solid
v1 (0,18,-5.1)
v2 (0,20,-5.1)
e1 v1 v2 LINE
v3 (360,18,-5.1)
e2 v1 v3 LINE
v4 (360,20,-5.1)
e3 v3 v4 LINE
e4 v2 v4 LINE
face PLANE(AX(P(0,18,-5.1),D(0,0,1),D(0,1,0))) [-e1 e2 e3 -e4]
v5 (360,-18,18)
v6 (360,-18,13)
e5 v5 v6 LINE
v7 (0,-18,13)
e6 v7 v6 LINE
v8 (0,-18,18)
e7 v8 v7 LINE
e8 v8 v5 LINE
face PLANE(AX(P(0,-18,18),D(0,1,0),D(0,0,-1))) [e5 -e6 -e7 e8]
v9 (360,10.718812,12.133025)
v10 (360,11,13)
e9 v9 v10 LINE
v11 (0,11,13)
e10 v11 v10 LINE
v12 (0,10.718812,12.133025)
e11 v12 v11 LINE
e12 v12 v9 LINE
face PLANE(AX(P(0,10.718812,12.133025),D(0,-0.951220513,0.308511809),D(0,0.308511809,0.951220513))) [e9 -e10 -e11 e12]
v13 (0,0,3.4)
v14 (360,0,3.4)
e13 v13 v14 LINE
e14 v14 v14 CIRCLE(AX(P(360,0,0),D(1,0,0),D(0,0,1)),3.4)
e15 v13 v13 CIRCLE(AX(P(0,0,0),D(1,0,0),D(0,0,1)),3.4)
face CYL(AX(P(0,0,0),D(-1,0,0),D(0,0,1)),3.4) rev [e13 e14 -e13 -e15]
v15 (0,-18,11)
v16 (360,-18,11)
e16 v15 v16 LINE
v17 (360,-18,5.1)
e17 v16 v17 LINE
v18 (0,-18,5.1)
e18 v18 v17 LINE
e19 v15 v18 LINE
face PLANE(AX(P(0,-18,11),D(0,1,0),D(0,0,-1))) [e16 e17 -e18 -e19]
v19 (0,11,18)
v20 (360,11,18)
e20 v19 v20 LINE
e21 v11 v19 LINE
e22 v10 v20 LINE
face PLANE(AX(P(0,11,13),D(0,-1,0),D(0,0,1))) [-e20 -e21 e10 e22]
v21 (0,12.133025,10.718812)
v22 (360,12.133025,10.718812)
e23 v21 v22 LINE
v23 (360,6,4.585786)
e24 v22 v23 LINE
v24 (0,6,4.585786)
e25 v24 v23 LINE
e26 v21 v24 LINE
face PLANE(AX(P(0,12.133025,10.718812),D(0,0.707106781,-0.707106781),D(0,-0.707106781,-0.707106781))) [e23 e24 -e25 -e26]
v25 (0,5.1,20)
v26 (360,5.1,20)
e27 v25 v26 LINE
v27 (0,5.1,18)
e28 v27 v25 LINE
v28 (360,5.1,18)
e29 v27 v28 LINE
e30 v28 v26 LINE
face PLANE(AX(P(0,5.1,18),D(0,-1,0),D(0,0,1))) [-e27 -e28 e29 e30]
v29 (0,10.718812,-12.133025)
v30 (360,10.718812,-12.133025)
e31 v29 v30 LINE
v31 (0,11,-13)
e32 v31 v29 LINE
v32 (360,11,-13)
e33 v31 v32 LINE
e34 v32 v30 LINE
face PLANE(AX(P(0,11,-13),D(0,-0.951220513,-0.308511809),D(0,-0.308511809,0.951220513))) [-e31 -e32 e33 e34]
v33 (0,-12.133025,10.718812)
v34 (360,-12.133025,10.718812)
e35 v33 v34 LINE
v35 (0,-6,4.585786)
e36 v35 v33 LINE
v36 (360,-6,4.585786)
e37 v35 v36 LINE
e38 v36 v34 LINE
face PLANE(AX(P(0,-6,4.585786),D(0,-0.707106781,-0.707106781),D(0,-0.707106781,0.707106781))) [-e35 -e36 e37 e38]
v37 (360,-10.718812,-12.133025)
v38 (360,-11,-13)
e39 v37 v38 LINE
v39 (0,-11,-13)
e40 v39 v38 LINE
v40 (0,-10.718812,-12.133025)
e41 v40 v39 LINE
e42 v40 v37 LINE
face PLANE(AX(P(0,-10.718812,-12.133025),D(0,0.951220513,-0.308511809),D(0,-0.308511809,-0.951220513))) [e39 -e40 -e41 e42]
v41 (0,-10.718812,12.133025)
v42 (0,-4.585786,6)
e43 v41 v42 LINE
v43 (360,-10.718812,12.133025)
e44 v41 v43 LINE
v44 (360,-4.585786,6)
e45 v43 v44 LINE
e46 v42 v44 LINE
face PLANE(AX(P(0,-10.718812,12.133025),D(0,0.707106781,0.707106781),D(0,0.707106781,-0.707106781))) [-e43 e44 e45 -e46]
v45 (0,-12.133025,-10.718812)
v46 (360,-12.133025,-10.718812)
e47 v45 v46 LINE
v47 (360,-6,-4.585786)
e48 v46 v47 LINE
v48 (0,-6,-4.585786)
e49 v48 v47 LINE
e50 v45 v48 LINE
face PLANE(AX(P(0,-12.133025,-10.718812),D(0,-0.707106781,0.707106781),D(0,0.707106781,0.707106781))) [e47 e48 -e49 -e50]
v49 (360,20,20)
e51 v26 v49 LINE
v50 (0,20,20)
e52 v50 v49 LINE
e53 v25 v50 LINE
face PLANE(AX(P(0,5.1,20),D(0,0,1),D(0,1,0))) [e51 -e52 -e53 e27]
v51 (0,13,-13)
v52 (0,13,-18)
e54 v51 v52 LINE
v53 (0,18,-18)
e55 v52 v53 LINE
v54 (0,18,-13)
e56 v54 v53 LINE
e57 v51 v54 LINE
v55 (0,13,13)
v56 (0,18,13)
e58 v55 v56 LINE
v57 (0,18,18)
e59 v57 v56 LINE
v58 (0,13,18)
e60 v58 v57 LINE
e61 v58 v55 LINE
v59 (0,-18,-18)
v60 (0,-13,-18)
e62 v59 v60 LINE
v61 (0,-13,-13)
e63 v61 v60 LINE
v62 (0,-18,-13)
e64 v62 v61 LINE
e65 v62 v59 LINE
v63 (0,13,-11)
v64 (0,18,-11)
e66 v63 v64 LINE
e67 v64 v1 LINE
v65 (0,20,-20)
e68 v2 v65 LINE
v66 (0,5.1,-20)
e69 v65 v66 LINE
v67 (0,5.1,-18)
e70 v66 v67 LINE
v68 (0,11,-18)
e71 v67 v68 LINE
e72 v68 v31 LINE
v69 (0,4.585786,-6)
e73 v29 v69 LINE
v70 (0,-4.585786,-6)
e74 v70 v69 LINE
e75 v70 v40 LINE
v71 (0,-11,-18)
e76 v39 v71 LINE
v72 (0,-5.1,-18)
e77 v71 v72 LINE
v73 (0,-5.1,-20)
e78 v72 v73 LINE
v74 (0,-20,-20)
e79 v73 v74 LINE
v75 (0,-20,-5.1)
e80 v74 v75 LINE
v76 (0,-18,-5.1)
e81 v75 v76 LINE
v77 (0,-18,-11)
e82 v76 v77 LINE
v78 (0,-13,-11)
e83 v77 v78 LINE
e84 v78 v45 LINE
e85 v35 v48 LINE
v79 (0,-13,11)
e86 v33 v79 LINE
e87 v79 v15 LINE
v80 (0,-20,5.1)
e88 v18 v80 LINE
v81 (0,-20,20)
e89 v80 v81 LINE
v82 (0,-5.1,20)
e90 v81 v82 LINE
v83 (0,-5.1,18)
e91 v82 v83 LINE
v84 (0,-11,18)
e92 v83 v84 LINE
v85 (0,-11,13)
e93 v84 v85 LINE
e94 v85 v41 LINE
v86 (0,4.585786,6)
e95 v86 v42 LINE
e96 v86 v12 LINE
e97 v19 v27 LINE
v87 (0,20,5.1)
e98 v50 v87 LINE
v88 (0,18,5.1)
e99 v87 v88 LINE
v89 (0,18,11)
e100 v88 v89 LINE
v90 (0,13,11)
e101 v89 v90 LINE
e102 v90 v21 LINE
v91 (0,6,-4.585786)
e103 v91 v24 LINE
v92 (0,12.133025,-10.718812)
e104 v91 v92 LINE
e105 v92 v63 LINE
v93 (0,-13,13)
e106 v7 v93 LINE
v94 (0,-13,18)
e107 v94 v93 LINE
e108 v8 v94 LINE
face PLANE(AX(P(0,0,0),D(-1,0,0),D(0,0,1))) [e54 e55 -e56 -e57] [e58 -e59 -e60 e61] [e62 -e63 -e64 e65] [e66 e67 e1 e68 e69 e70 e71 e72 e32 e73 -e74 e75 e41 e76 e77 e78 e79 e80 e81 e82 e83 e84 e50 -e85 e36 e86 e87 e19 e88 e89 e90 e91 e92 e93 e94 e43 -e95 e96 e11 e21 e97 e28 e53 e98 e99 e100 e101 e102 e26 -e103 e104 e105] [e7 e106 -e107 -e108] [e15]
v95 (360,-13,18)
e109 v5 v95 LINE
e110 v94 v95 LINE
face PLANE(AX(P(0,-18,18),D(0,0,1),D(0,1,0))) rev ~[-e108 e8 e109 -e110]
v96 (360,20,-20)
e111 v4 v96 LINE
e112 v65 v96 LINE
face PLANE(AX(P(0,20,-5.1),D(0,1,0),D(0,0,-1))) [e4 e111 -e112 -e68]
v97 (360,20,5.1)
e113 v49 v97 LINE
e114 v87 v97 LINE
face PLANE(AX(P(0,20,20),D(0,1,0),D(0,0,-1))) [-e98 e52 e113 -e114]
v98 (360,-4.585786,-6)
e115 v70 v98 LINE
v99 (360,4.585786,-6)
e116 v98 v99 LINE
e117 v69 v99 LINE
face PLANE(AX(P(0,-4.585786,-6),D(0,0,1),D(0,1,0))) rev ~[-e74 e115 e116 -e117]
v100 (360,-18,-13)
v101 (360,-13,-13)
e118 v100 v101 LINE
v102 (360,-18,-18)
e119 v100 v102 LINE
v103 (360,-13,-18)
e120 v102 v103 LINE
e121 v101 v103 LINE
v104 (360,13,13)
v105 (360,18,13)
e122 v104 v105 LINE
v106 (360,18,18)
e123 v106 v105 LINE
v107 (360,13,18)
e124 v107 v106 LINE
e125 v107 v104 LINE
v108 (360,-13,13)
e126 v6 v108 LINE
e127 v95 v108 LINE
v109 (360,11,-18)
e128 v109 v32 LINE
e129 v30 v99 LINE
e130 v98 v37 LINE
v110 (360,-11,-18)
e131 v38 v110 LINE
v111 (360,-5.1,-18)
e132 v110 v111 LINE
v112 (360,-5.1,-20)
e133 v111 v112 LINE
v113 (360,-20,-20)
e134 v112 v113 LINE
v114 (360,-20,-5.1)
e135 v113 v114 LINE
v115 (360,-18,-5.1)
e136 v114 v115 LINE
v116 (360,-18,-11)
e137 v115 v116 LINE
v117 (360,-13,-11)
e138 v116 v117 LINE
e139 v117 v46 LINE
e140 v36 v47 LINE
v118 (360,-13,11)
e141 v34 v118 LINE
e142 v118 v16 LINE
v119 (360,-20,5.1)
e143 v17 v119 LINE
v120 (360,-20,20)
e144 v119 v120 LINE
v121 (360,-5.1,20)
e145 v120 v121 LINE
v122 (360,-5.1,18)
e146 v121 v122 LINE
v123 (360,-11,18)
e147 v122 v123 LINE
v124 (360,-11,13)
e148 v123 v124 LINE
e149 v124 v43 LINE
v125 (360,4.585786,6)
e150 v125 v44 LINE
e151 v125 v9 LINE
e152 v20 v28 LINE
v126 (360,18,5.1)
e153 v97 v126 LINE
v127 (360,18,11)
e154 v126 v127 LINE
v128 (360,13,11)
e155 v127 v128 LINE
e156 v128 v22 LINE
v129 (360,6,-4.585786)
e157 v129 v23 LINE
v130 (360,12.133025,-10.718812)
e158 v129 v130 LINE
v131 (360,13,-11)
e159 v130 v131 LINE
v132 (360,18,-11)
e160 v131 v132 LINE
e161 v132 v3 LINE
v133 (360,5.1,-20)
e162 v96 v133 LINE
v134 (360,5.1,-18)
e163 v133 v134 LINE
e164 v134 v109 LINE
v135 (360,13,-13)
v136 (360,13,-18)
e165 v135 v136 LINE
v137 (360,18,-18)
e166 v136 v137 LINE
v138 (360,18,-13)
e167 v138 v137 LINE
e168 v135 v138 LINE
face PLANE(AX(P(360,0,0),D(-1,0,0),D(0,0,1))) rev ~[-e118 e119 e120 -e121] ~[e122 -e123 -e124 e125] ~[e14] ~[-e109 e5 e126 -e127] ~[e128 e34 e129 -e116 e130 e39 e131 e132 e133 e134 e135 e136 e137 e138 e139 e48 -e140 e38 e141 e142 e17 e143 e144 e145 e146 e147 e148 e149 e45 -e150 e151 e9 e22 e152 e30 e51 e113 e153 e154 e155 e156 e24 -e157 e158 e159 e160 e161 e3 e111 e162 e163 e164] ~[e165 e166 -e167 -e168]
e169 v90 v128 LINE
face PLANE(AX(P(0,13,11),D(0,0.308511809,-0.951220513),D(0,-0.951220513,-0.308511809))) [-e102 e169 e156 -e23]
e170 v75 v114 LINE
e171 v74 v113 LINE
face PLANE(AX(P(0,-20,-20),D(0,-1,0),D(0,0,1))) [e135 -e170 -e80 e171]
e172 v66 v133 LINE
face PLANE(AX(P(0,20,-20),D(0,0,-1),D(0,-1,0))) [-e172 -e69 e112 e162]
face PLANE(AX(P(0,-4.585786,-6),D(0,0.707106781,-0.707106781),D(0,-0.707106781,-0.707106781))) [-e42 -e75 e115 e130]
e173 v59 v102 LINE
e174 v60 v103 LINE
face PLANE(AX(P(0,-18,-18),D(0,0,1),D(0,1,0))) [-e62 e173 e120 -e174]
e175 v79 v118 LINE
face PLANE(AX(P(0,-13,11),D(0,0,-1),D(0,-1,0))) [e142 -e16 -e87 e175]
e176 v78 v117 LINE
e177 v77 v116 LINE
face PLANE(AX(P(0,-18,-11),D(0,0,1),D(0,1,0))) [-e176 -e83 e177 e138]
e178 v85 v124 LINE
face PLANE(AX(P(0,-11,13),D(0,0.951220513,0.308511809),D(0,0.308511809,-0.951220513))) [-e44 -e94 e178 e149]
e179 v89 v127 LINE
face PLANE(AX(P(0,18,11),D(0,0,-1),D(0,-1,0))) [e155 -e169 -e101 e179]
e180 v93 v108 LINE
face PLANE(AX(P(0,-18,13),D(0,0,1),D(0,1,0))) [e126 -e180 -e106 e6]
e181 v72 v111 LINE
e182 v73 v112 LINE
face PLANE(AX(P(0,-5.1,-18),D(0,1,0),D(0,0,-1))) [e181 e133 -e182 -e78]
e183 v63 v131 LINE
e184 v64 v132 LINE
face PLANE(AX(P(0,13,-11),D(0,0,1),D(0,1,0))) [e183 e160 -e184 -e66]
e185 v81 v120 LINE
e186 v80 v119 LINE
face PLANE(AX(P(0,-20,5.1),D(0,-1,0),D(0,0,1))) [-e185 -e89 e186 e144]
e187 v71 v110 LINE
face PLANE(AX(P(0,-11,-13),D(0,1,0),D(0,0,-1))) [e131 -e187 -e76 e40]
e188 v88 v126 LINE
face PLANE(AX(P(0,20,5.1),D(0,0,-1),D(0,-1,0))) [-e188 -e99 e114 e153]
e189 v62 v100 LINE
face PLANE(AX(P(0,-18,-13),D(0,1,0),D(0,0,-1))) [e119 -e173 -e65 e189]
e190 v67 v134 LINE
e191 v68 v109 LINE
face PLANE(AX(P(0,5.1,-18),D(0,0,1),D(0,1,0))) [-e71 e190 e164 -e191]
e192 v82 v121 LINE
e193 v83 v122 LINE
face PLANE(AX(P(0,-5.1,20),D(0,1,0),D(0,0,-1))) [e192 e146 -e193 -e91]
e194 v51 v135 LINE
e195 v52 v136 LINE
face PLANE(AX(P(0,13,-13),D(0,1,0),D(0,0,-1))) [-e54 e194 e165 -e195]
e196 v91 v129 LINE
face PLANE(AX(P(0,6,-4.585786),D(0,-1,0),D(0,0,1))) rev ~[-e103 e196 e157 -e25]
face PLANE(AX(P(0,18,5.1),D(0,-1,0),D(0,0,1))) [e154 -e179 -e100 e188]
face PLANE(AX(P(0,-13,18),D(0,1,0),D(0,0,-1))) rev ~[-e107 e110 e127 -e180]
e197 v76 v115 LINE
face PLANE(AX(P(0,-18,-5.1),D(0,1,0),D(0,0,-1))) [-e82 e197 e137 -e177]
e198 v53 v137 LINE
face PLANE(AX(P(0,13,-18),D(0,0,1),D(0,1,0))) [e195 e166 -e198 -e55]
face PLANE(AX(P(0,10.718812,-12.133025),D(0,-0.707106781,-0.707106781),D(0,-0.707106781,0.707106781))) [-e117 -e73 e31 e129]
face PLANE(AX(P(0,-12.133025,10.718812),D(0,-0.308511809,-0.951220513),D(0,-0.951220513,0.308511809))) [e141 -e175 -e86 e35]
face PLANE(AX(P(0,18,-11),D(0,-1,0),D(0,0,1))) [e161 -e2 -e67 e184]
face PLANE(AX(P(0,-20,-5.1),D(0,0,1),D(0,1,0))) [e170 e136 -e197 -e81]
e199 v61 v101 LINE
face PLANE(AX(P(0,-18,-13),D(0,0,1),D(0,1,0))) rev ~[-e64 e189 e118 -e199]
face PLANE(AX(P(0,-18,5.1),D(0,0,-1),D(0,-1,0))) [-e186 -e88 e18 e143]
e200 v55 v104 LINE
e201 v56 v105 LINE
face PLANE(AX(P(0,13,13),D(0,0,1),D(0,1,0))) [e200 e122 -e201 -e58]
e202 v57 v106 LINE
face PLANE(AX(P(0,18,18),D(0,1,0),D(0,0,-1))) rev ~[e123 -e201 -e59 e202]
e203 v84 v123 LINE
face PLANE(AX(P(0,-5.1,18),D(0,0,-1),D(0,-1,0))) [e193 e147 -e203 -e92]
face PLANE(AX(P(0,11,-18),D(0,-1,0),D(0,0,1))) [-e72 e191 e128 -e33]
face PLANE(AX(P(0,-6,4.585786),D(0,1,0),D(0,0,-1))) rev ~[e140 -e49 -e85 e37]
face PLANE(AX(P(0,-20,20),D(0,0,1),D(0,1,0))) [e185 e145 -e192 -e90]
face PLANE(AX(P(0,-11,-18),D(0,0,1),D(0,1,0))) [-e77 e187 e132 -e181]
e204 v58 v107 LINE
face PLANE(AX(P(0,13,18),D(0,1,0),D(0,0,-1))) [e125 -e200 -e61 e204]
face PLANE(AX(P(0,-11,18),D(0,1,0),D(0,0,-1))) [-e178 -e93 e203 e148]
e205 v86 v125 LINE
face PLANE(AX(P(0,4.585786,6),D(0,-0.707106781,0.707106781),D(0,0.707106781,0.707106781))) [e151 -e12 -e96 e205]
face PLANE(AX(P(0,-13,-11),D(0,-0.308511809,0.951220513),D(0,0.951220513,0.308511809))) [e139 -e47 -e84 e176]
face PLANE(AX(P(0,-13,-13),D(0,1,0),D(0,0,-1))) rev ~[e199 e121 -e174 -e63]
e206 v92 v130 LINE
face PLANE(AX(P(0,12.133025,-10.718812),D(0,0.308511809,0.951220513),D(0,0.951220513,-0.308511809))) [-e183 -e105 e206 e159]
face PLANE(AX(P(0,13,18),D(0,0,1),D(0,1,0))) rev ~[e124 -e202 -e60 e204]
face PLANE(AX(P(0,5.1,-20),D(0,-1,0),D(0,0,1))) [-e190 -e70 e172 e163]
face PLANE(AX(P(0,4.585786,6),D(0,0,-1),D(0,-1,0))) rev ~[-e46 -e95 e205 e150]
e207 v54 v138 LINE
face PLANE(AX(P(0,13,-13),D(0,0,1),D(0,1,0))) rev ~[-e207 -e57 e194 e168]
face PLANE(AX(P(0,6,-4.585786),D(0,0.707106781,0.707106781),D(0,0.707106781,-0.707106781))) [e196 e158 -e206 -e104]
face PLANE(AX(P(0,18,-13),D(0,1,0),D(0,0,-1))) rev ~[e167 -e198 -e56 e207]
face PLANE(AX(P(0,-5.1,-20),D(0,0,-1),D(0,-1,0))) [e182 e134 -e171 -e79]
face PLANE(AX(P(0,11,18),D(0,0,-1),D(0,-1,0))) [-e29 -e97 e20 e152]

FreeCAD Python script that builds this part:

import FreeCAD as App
import Part
import Sketcher
from FreeCAD import Vector


def add_polygon(sketch, points):
    """Adds a closed chain of lines whose ends are joined by coincident constraints."""
    first, n = sketch.GeometryCount, len(points)
    for a, b in zip(points, points[1:] + points[:1]):
        sketch.addGeometry(Part.LineSegment(App.Vector(*a, 0), App.Vector(*b, 0)), False)
    for i in range(n):
        sketch.addConstraint(Sketcher.Constraint("Coincident", first + i, 2, first + (i + 1) % n, 1))

doc = App.newDocument("Part")
params = doc.addObject("Spreadsheet::Sheet", "Params")
for row, (alias, value) in enumerate([
    ("sketch1_diameter", "6.8 mm"),
    ("sketch1_width", "5 mm"),
    ("sketch1_width2", "2 mm"),
    ("sketch1_width3", "14.9 mm"),
    ("sketch1_width4", "5.9 mm"),
    ("pad1_length", "360 mm"),
], start=1):
    params.set(f"A{row}", alias)
    params.set(f"B{row}", "=" + value)
    params.setAlias(f"B{row}", alias)

body = doc.addObject("PartDesign::Body", "Body")

sketch1 = body.newObject("Sketcher::SketchObject", "Sketch")
sketch1.AttachmentSupport = (doc.getObject("YZ_Plane"), [""])
sketch1.MapMode = "FlatFace"
add_polygon(sketch1, [(6, -4.6), (6, 4.6), (12.1, 10.7), (13, 11), (18, 11), (18, 5.1), (20, 5.1), (20, 20), (5.1, 20), (5.1, 18), (11, 18), (11, 13), (10.7, 12.1), (4.6, 6), (-4.6, 6), (-10.7, 12.1), (-11, 13), (-11, 18), (-5.1, 18), (-5.1, 20), (-20, 20), (-20, 5.1), (-18, 5.1), (-18, 11), (-13, 11), (-12.1, 10.7), (-6, 4.6), (-6, -4.6), (-12.1, -10.7), (-13, -11), (-18, -11), (-18, -5.1), (-20, -5.1), (-20, -20), (-5.1, -20), (-5.1, -18), (-11, -18), (-11, -13), (-10.7, -12.1), (-4.6, -6), (4.6, -6), (10.7, -12.1), (11, -13), (11, -18), (5.1, -18), (5.1, -20), (20, -20), (20, -5.1), (18, -5.1), (18, -11), (13, -11), (12.1, -10.7)])
add_polygon(sketch1, [(-18, -13), (-13, -13), (-13, -18), (-18, -18)])
add_polygon(sketch1, [(-18, 18), (-13, 18), (-13, 13), (-18, 13)])
add_polygon(sketch1, [(13, -13), (18, -13), (18, -18), (13, -18)])
sketch1.addGeometry(Part.Circle(Vector(0, 0, 0), Vector(0, 0, 1), 3.4), False)
add_polygon(sketch1, [(13, 18), (18, 18), (18, 13), (13, 13)])
sketch1.addConstraint([
    Sketcher.Constraint("Vertical", 0),
    Sketcher.Constraint("Horizontal", 3),
    Sketcher.Constraint("Vertical", 4),
    Sketcher.Constraint("Horizontal", 5),
    Sketcher.Constraint("Vertical", 6),
    Sketcher.Constraint("Horizontal", 7),
    Sketcher.Constraint("Vertical", 8),
    Sketcher.Constraint("Horizontal", 9),
    Sketcher.Constraint("Vertical", 10),
    Sketcher.Constraint("Horizontal", 13),
    Sketcher.Constraint("Vertical", 16),
    Sketcher.Constraint("Horizontal", 17),
    Sketcher.Constraint("Vertical", 18),
    Sketcher.Constraint("Horizontal", 19),
    Sketcher.Constraint("Vertical", 20),
    Sketcher.Constraint("Horizontal", 21),
    Sketcher.Constraint("Vertical", 22),
    Sketcher.Constraint("Horizontal", 23),
    Sketcher.Constraint("Vertical", 26),
    Sketcher.Constraint("Horizontal", 29),
    Sketcher.Constraint("Vertical", 30),
    Sketcher.Constraint("Horizontal", 31),
    Sketcher.Constraint("Vertical", 32),
    Sketcher.Constraint("Horizontal", 33),
    Sketcher.Constraint("Vertical", 34),
    Sketcher.Constraint("Horizontal", 35),
    Sketcher.Constraint("Vertical", 36),
    Sketcher.Constraint("Horizontal", 39),
    Sketcher.Constraint("Vertical", 42),
    Sketcher.Constraint("Horizontal", 43),
    Sketcher.Constraint("Vertical", 44),
    Sketcher.Constraint("Horizontal", 45),
    Sketcher.Constraint("Vertical", 46),
    Sketcher.Constraint("Horizontal", 47),
    Sketcher.Constraint("Vertical", 48),
    Sketcher.Constraint("Horizontal", 49),
    Sketcher.Constraint("Horizontal", 52),
    Sketcher.Constraint("Vertical", 53),
    Sketcher.Constraint("Horizontal", 54),
    Sketcher.Constraint("Vertical", 55),
    Sketcher.Constraint("Horizontal", 56),
    Sketcher.Constraint("Vertical", 57),
    Sketcher.Constraint("Horizontal", 58),
    Sketcher.Constraint("Vertical", 59),
    Sketcher.Constraint("Horizontal", 60),
    Sketcher.Constraint("Vertical", 61),
    Sketcher.Constraint("Horizontal", 62),
    Sketcher.Constraint("Vertical", 63),
    Sketcher.Constraint("Horizontal", 65),
    Sketcher.Constraint("Vertical", 66),
    Sketcher.Constraint("Horizontal", 67),
    Sketcher.Constraint("Vertical", 68),
    Sketcher.Constraint("Coincident", 64, 3, -1, 1),
    Sketcher.Constraint("Symmetric", 0, 2, 26, 2, -1, 1),
    Sketcher.Constraint("Symmetric", 1, 2, 27, 2, -1, 1),
    Sketcher.Constraint("Symmetric", 2, 2, 28, 2, -1, 1),
    Sketcher.Constraint("Symmetric", 4, 2, 30, 2, -1, 1),
    Sketcher.Constraint("Symmetric", 6, 2, 32, 2, -1, 1),
    Sketcher.Constraint("Symmetric", 8, 2, 34, 2, -1, 1),
    Sketcher.Constraint("Symmetric", 10, 2, 36, 2, -1, 1),
    Sketcher.Constraint("Symmetric", 11, 2, 37, 2, -1, 1),
    Sketcher.Constraint("Symmetric", 12, 2, 38, 2, -1, 1),
    Sketcher.Constraint("Symmetric", 14, 2, 40, 2, -1, 1),
    Sketcher.Constraint("Symmetric", 15, 2, 41, 2, -1, 1),
    Sketcher.Constraint("Symmetric", 17, 2, 43, 2, -1, 1),
    Sketcher.Constraint("Symmetric", 19, 2, 45, 2, -1, 1),
    Sketcher.Constraint("Symmetric", 21, 2, 47, 2, -1, 1),
    Sketcher.Constraint("Symmetric", 23, 2, 49, 2, -1, 1),
    Sketcher.Constraint("Symmetric", 24, 2, 50, 2, -1, 1),
    Sketcher.Constraint("Symmetric", 58, 2, 60, 2, -1, 1),
    Sketcher.Constraint("Symmetric", 56, 2, 62, 2, -1, 1),
    Sketcher.Constraint("Symmetric", 54, 2, 65, 2, -1, 1),
    Sketcher.Constraint("Symmetric", 52, 2, 67, 2, -1, 1),
    Sketcher.Constraint("Symmetric", 11, 2, 14, 2, -2),
    Sketcher.Constraint("Symmetric", 10, 2, 15, 2, -2),
    Sketcher.Constraint("Symmetric", 8, 2, 17, 2, -2),
    Sketcher.Constraint("Symmetric", 6, 2, 19, 2, -2),
    Sketcher.Constraint("Symmetric", 4, 2, 21, 2, -2),
    Sketcher.Constraint("Symmetric", 2, 2, 23, 2, -2),
    Sketcher.Constraint("Symmetric", 1, 2, 24, 2, -2),
    Sketcher.Constraint("Symmetric", 55, 2, 60, 2, -2),
    Sketcher.Constraint("Symmetric", 53, 2, 62, 2, -2),
    Sketcher.Constraint("Parallel", 1, 12),
    Sketcher.Constraint("Perpendicular", 12, 14),
    Sketcher.Constraint("Perpendicular", 2, 15),
    Sketcher.Constraint("Parallel", 14, 25),
    Sketcher.Constraint("Perpendicular", 38, 40),
    Sketcher.Constraint("Parallel", 40, 51),
    Sketcher.Constraint("Horizontal", 0, 2, 25, 2),
    Sketcher.Constraint("Horizontal", 41, 2, 52, 2),
    Sketcher.Constraint("Horizontal", 43, 2, 53, 2),
    Sketcher.Constraint("Vertical", 28, 2, 52, 2),
    Sketcher.Constraint("Vertical", 30, 2, 54, 2),
    Sketcher.Constraint("Equal", 39, 0),
    Sketcher.Constraint("Equal", 43, 4),
    Sketcher.Constraint("Equal", 45, 6),
    Sketcher.Constraint("Equal", 47, 8),
    Sketcher.Constraint("Equal", 67, 10),
    Sketcher.Constraint("Equal", 2, 11),
    Sketcher.Constraint("Equal", 1, 12),
    Sketcher.Constraint("Diameter", 64, 6.8),
    Sketcher.Constraint("DistanceX", 3, 1, 3, 2, 5.0),
    Sketcher.Constraint("DistanceX", 5, 1, 5, 2, 2.0),
    Sketcher.Constraint("DistanceX", 7, 2, 7, 1, 14.9),
    Sketcher.Constraint("DistanceX", 9, 1, 9, 2, 5.9),
    Sketcher.Constraint("DistanceX", -1, 1, 0, 2, 6.0),
    Sketcher.Constraint("DistanceX", -1, 1, 2, 2, 13.0),
    Sketcher.Constraint("DistanceX", 13, 2, 13, 1, 9.171573),
    Sketcher.Constraint("DistanceY", -1, 1, 1, 2, 10.718812),
])
sketch1.setExpression("Constraints[168]", "Params.sketch1_diameter")
sketch1.setExpression("Constraints[169]", "Params.sketch1_width")
sketch1.setExpression("Constraints[170]", "Params.sketch1_width2")
sketch1.setExpression("Constraints[171]", "Params.sketch1_width3")
sketch1.setExpression("Constraints[172]", "Params.sketch1_width4")
pad1 = body.newObject("PartDesign::Pad", "Pad")
pad1.Profile = sketch1
pad1.setExpression("Length", "Params.pad1_length")

doc.recompute()
